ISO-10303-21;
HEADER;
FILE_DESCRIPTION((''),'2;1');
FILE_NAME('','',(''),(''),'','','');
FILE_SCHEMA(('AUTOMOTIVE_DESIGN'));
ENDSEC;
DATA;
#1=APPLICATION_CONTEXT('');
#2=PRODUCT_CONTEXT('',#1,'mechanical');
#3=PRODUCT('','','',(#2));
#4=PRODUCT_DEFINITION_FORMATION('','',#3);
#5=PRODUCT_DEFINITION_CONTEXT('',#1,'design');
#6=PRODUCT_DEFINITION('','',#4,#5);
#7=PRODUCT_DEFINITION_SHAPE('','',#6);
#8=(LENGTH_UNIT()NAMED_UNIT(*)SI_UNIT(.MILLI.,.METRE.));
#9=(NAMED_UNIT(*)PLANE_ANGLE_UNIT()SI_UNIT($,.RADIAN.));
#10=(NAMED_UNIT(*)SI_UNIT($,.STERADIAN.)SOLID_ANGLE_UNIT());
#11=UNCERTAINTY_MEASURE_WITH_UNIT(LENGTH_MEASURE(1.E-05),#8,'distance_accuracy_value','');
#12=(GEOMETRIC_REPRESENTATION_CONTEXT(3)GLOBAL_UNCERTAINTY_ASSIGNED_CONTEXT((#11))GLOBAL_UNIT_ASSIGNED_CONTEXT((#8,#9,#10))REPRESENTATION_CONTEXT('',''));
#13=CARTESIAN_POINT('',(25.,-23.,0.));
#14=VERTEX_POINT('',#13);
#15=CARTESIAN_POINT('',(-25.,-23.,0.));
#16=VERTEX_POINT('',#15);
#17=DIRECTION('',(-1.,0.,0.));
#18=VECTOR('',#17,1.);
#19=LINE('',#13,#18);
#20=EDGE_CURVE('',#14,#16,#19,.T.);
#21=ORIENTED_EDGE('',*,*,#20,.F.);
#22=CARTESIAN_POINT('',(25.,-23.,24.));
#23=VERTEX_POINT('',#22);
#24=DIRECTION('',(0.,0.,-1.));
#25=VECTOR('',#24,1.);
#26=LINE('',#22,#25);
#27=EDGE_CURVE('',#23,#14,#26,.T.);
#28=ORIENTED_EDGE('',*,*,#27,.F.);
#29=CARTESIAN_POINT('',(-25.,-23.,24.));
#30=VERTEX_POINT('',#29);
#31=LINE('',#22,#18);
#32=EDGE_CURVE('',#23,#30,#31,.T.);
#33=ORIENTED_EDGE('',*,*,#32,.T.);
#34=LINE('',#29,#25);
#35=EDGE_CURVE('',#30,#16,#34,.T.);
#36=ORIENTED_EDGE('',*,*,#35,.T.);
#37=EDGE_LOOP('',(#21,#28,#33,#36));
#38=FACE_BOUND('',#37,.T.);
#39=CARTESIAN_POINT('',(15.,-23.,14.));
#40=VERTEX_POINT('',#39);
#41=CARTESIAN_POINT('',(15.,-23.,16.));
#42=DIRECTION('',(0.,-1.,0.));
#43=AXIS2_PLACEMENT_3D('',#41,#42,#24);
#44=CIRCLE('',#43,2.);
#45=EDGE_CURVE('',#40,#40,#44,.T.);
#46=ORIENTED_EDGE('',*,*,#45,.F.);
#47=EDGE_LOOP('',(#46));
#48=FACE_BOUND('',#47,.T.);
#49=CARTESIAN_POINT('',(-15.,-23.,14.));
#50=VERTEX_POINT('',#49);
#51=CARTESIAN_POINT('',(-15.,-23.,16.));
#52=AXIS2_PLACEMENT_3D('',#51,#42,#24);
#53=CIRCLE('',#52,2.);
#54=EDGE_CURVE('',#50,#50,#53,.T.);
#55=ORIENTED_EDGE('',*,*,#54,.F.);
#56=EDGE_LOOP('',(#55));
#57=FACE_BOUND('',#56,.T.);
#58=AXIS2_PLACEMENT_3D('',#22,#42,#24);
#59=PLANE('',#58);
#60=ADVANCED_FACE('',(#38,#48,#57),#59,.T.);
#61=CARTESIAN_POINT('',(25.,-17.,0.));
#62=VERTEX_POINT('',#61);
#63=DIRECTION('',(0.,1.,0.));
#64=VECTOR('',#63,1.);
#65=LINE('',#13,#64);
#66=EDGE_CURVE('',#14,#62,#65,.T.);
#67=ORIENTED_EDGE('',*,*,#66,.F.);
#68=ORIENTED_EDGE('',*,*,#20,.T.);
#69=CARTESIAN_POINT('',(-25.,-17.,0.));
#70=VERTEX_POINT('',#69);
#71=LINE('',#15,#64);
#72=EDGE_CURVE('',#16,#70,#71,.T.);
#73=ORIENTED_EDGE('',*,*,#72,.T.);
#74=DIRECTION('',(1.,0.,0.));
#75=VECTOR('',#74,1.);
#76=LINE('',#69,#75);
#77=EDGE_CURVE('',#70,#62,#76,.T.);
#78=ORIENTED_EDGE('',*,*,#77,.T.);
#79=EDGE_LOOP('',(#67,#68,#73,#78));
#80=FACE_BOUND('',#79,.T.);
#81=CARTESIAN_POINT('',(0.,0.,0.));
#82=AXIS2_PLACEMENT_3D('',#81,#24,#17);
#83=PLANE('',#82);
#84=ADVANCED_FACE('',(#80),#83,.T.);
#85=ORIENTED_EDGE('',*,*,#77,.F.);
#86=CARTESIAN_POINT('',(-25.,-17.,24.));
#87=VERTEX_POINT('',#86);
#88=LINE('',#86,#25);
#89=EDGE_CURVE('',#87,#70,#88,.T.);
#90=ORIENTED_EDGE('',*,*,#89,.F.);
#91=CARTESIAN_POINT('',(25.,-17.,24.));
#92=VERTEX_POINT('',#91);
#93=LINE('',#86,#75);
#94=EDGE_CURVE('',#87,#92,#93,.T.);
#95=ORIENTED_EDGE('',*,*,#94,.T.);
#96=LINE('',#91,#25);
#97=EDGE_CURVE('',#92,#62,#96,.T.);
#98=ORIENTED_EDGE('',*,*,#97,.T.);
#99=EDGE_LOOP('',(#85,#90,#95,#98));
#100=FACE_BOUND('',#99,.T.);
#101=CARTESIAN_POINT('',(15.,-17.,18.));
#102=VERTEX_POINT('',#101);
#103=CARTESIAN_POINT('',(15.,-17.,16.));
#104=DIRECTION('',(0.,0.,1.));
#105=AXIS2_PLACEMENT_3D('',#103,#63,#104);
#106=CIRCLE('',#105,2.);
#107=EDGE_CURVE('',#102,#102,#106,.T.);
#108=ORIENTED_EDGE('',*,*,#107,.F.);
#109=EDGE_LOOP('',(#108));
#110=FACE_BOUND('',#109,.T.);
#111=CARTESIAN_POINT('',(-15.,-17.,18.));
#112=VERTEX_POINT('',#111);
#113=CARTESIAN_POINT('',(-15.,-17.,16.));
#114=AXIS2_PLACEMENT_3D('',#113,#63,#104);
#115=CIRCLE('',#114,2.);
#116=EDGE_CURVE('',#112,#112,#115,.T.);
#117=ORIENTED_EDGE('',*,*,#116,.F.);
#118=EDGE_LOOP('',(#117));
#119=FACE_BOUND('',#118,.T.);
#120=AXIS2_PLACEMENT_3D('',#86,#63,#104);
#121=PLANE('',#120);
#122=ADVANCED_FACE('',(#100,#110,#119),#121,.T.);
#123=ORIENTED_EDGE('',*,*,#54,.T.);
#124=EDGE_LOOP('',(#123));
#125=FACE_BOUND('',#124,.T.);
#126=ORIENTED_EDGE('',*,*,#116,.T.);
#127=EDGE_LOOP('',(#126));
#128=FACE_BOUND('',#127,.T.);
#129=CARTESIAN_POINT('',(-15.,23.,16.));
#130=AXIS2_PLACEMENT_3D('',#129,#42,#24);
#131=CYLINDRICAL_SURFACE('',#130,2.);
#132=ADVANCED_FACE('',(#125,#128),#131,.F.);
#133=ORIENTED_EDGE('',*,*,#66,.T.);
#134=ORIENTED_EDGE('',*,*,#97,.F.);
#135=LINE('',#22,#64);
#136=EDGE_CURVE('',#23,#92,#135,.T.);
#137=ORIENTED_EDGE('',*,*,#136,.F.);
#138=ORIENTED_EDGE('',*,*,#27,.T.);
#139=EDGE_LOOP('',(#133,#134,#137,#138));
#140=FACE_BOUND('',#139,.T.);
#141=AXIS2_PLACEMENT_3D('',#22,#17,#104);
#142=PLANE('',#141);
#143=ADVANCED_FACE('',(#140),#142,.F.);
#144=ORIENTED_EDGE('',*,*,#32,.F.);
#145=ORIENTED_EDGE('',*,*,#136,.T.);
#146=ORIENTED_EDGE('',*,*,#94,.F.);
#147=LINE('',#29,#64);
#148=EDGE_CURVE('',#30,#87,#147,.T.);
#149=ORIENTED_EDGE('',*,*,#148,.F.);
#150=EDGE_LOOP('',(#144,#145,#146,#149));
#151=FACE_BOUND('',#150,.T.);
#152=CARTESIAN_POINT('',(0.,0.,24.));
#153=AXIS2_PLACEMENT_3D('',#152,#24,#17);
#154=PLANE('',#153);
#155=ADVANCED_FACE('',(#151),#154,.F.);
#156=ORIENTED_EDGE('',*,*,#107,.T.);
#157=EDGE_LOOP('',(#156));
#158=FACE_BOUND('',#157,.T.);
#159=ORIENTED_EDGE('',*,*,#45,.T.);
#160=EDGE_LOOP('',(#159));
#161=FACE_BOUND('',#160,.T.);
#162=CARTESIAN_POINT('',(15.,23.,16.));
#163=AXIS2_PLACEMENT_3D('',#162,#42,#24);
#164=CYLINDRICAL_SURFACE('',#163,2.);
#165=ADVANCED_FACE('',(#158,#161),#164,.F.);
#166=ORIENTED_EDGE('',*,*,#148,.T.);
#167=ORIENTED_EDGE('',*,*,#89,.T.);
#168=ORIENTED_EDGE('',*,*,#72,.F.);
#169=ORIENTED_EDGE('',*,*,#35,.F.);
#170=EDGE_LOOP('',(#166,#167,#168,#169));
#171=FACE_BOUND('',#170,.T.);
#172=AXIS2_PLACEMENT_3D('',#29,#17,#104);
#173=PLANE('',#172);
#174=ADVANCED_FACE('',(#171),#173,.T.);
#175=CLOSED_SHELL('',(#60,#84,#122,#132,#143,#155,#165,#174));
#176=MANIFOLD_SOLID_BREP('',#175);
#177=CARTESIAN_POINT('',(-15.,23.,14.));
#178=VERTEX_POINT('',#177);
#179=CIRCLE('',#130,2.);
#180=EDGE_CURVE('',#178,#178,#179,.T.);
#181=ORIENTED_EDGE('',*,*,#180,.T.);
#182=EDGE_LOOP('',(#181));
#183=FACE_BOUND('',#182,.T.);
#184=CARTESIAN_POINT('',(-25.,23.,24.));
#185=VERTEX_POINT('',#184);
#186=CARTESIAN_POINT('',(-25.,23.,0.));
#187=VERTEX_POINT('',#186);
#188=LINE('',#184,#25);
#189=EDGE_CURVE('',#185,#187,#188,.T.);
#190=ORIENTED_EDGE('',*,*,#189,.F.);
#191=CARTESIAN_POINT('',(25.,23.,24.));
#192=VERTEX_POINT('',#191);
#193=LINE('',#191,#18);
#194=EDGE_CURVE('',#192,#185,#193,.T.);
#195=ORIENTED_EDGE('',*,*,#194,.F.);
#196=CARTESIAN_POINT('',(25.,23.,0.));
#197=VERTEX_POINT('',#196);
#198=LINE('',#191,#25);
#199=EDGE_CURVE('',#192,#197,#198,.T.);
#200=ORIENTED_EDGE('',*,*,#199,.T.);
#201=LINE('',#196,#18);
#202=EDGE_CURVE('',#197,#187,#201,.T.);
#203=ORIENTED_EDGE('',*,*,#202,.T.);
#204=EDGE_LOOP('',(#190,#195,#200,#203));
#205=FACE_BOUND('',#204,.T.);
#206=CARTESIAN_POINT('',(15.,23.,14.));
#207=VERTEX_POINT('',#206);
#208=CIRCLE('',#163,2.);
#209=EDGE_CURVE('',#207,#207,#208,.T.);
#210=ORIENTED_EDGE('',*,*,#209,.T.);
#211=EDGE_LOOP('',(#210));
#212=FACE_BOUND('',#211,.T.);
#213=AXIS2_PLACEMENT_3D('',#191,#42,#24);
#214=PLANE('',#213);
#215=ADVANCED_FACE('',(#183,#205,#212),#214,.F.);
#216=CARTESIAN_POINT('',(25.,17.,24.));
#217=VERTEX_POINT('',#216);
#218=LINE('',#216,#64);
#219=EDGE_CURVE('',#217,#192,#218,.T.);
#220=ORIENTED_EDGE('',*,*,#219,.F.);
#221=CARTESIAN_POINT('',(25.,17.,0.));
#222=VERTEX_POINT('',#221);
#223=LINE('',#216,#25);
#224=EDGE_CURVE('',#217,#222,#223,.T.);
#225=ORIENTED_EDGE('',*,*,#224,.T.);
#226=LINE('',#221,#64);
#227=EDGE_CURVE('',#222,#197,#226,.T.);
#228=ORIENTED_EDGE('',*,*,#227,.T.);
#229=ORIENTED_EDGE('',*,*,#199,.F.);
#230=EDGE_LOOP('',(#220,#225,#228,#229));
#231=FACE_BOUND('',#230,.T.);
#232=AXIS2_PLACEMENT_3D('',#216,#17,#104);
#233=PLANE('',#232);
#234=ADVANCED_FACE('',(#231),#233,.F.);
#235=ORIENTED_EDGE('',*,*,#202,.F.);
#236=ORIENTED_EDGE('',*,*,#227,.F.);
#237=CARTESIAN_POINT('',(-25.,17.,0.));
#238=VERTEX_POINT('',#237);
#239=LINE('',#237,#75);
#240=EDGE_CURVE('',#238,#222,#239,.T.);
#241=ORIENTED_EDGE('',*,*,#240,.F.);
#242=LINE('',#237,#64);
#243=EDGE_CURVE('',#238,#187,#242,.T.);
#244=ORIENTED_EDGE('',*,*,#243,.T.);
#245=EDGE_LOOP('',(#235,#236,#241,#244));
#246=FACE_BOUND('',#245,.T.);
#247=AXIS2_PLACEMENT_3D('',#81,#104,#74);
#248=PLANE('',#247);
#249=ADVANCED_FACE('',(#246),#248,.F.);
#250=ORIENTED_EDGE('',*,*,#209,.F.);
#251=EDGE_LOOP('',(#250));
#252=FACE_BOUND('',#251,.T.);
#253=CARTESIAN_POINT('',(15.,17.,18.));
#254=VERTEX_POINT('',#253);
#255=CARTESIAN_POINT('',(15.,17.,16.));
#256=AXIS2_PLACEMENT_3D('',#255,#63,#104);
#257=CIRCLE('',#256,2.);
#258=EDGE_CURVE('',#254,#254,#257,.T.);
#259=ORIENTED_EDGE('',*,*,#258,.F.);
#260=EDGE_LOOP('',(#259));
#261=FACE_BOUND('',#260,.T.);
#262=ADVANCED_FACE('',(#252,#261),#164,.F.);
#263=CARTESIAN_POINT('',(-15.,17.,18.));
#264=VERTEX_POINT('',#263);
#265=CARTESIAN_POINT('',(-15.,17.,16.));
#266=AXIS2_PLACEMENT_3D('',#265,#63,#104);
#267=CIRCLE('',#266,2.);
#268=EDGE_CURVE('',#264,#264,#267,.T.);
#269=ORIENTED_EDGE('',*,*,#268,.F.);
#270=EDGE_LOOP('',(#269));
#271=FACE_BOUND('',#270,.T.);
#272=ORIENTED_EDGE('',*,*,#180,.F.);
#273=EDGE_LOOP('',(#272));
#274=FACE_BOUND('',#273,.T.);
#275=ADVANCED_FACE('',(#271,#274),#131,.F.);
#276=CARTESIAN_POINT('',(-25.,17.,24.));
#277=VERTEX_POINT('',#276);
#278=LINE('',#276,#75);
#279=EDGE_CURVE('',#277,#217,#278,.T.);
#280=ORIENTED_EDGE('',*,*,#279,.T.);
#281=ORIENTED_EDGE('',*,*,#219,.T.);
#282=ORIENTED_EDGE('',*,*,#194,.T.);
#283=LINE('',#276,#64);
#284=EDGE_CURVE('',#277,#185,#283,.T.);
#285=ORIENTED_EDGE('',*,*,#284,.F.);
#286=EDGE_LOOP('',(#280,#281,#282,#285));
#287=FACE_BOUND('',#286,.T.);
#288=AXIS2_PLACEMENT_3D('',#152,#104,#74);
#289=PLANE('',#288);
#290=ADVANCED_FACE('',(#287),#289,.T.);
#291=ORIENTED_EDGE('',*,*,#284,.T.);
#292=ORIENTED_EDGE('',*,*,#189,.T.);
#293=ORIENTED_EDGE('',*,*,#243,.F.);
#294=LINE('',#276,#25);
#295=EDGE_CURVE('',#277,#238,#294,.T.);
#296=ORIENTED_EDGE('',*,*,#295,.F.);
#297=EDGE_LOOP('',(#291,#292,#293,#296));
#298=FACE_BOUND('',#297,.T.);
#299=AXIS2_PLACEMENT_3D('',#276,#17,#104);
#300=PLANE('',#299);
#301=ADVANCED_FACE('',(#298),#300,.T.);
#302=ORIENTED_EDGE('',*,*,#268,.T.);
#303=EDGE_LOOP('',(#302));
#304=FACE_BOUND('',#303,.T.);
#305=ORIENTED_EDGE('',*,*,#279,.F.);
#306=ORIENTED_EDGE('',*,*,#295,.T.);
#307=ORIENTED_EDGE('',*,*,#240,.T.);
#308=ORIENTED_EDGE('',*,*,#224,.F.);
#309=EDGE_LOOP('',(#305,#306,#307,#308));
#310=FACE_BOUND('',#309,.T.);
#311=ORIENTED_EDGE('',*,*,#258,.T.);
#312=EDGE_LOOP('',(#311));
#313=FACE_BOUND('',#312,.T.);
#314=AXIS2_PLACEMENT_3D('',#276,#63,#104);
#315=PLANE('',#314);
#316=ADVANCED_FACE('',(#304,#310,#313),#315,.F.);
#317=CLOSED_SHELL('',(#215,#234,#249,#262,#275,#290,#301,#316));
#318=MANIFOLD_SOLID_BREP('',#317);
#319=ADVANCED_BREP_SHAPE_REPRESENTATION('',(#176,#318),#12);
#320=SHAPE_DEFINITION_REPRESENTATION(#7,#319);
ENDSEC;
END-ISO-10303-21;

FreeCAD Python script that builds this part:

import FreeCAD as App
import Part
import Sketcher

V = App.Vector


def add_polygon(sketch, points):
    """Adds a closed chain of lines whose ends are joined by coincident constraints."""
    first, n = sketch.GeometryCount, len(points)
    for a, b in zip(points, points[1:] + points[:1]):
        sketch.addGeometry(Part.LineSegment(App.Vector(*a, 0), App.Vector(*b, 0)), False)
    for i in range(n):
        sketch.addConstraint(Sketcher.Constraint("Coincident", first + i, 2, first + (i + 1) % n, 1))

doc = App.newDocument("Part")
params = doc.addObject("Spreadsheet::Sheet", "Params")
for row, (alias, value) in enumerate([
    ("sketch1_width", "50 mm"),
    ("sketch1_height", "6 mm"),
    ("pad1_length", "24 mm"),
    ("sketch2_width", "50 mm"),
    ("sketch2_height", "6 mm"),
    ("pad2_length", "24 mm"),
    ("sketch3_diameter", "4 mm"),
    ("pad3_length", "58.593402 mm"),
], start=1):
    params.set(f"A{row}", alias)
    params.set(f"B{row}", "=" + value)
    params.setAlias(f"B{row}", alias)

body = doc.addObject("PartDesign::Body", "Body")

sketch1 = body.newObject("Sketcher::SketchObject", "Sketch")
sketch1.AttachmentSupport = (doc.getObject("XY_Plane"), [""])
sketch1.MapMode = "FlatFace"
add_polygon(sketch1, [(-25, -17), (-25, -23), (25, -23), (25, -17)])
sketch1.addConstraint(Sketcher.Constraint("Vertical", 0))
sketch1.addConstraint(Sketcher.Constraint("Horizontal", 1))
sketch1.addConstraint(Sketcher.Constraint("Vertical", 2))
sketch1.addConstraint(Sketcher.Constraint("Horizontal", 3))
sketch1.addConstraint(Sketcher.Constraint("DistanceX", 1, 1, 1, 2, 50.0))
sketch1.addConstraint(Sketcher.Constraint("DistanceY", 0, 2, 0, 1, 6.0))
sketch1.addConstraint(Sketcher.Constraint("DistanceX", 0, 2, -1, 1, 25.0))
sketch1.addConstraint(Sketcher.Constraint("DistanceY", 0, 2, -1, 1, 23.0))
sketch1.setExpression("Constraints[8]", "Params.sketch1_width")
sketch1.setExpression("Constraints[9]", "Params.sketch1_height")
pad1 = body.newObject("PartDesign::Pad", "Pad")
pad1.Profile = sketch1
pad1.setExpression("Length", "Params.pad1_length")
body2 = doc.addObject("PartDesign::Body", "Body001")

sketch2 = body2.newObject("Sketcher::SketchObject", "Sketch001")
sketch2.AttachmentSupport = (doc.getObject("XY_Plane001"), [""])
sketch2.MapMode = "FlatFace"
add_polygon(sketch2, [(-25, 23), (-25, 17), (25, 17), (25, 23)])
sketch2.addConstraint(Sketcher.Constraint("Vertical", 0))
sketch2.addConstraint(Sketcher.Constraint("Horizontal", 1))
sketch2.addConstraint(Sketcher.Constraint("Vertical", 2))
sketch2.addConstraint(Sketcher.Constraint("Horizontal", 3))
sketch2.addConstraint(Sketcher.Constraint("DistanceX", 1, 1, 1, 2, 50.0))
sketch2.addConstraint(Sketcher.Constraint("DistanceY", 0, 2, 0, 1, 6.0))
sketch2.addConstraint(Sketcher.Constraint("DistanceX", 0, 2, -1, 1, 25.0))
sketch2.addConstraint(Sketcher.Constraint("DistanceY", -1, 1, 0, 2, 17.0))
sketch2.setExpression("Constraints[8]", "Params.sketch2_width")
sketch2.setExpression("Constraints[9]", "Params.sketch2_height")
pad2 = body2.newObject("PartDesign::Pad", "Pad001")
pad2.Profile = sketch2
pad2.setExpression("Length", "Params.pad2_length")
body3 = doc.addObject("PartDesign::Body", "Body002")
body3.AllowCompound = True

sketch3 = body3.newObject("Sketcher::SketchObject", "Sketch002")
sketch3.AttachmentSupport = (doc.getObject("XZ_Plane002"), [""])
sketch3.MapMode = "FlatFace"
sketch3.AttachmentOffset = App.Placement(V(0, 0, 23), App.Rotation())
sketch3.addGeometry(Part.Circle(V(-15, 16, 0), V(0, 0, 1), 2), False)
sketch3.addGeometry(Part.Circle(V(15, 16, 0), V(0, 0, 1), 2), False)
sketch3.addConstraint(Sketcher.Constraint("Equal", 0, 1))
sketch3.addConstraint(Sketcher.Constraint("Symmetric", 0, 3, 1, 3, -2))
sketch3.addConstraint(Sketcher.Constraint("Diameter", 0, 4.0))
sketch3.addConstraint(Sketcher.Constraint("DistanceX", 0, 3, -1, 1, 15.0))
sketch3.addConstraint(Sketcher.Constraint("DistanceY", -1, 1, 0, 3, 16.0))
sketch3.setExpression("Constraints[2]", "Params.sketch3_diameter")
pad3 = body3.newObject("PartDesign::Pad", "Pad002")
pad3.Profile = sketch3
pad3.setExpression("Length", "Params.pad3_length")
pad3.Reversed = True
doc.recompute()

body4 = doc.addObject("PartDesign::Body", "Body003")
body4.BaseFeature = body3
boolean = body.newObject("PartDesign::Boolean", "Boolean")
boolean.Type = "Cut"
boolean.addObjects([body4])
doc.recompute()

boolean2 = body2.newObject("PartDesign::Boolean", "Boolean001")
boolean2.Type = "Cut"
boolean2.addObjects([body3])

doc.recompute()
